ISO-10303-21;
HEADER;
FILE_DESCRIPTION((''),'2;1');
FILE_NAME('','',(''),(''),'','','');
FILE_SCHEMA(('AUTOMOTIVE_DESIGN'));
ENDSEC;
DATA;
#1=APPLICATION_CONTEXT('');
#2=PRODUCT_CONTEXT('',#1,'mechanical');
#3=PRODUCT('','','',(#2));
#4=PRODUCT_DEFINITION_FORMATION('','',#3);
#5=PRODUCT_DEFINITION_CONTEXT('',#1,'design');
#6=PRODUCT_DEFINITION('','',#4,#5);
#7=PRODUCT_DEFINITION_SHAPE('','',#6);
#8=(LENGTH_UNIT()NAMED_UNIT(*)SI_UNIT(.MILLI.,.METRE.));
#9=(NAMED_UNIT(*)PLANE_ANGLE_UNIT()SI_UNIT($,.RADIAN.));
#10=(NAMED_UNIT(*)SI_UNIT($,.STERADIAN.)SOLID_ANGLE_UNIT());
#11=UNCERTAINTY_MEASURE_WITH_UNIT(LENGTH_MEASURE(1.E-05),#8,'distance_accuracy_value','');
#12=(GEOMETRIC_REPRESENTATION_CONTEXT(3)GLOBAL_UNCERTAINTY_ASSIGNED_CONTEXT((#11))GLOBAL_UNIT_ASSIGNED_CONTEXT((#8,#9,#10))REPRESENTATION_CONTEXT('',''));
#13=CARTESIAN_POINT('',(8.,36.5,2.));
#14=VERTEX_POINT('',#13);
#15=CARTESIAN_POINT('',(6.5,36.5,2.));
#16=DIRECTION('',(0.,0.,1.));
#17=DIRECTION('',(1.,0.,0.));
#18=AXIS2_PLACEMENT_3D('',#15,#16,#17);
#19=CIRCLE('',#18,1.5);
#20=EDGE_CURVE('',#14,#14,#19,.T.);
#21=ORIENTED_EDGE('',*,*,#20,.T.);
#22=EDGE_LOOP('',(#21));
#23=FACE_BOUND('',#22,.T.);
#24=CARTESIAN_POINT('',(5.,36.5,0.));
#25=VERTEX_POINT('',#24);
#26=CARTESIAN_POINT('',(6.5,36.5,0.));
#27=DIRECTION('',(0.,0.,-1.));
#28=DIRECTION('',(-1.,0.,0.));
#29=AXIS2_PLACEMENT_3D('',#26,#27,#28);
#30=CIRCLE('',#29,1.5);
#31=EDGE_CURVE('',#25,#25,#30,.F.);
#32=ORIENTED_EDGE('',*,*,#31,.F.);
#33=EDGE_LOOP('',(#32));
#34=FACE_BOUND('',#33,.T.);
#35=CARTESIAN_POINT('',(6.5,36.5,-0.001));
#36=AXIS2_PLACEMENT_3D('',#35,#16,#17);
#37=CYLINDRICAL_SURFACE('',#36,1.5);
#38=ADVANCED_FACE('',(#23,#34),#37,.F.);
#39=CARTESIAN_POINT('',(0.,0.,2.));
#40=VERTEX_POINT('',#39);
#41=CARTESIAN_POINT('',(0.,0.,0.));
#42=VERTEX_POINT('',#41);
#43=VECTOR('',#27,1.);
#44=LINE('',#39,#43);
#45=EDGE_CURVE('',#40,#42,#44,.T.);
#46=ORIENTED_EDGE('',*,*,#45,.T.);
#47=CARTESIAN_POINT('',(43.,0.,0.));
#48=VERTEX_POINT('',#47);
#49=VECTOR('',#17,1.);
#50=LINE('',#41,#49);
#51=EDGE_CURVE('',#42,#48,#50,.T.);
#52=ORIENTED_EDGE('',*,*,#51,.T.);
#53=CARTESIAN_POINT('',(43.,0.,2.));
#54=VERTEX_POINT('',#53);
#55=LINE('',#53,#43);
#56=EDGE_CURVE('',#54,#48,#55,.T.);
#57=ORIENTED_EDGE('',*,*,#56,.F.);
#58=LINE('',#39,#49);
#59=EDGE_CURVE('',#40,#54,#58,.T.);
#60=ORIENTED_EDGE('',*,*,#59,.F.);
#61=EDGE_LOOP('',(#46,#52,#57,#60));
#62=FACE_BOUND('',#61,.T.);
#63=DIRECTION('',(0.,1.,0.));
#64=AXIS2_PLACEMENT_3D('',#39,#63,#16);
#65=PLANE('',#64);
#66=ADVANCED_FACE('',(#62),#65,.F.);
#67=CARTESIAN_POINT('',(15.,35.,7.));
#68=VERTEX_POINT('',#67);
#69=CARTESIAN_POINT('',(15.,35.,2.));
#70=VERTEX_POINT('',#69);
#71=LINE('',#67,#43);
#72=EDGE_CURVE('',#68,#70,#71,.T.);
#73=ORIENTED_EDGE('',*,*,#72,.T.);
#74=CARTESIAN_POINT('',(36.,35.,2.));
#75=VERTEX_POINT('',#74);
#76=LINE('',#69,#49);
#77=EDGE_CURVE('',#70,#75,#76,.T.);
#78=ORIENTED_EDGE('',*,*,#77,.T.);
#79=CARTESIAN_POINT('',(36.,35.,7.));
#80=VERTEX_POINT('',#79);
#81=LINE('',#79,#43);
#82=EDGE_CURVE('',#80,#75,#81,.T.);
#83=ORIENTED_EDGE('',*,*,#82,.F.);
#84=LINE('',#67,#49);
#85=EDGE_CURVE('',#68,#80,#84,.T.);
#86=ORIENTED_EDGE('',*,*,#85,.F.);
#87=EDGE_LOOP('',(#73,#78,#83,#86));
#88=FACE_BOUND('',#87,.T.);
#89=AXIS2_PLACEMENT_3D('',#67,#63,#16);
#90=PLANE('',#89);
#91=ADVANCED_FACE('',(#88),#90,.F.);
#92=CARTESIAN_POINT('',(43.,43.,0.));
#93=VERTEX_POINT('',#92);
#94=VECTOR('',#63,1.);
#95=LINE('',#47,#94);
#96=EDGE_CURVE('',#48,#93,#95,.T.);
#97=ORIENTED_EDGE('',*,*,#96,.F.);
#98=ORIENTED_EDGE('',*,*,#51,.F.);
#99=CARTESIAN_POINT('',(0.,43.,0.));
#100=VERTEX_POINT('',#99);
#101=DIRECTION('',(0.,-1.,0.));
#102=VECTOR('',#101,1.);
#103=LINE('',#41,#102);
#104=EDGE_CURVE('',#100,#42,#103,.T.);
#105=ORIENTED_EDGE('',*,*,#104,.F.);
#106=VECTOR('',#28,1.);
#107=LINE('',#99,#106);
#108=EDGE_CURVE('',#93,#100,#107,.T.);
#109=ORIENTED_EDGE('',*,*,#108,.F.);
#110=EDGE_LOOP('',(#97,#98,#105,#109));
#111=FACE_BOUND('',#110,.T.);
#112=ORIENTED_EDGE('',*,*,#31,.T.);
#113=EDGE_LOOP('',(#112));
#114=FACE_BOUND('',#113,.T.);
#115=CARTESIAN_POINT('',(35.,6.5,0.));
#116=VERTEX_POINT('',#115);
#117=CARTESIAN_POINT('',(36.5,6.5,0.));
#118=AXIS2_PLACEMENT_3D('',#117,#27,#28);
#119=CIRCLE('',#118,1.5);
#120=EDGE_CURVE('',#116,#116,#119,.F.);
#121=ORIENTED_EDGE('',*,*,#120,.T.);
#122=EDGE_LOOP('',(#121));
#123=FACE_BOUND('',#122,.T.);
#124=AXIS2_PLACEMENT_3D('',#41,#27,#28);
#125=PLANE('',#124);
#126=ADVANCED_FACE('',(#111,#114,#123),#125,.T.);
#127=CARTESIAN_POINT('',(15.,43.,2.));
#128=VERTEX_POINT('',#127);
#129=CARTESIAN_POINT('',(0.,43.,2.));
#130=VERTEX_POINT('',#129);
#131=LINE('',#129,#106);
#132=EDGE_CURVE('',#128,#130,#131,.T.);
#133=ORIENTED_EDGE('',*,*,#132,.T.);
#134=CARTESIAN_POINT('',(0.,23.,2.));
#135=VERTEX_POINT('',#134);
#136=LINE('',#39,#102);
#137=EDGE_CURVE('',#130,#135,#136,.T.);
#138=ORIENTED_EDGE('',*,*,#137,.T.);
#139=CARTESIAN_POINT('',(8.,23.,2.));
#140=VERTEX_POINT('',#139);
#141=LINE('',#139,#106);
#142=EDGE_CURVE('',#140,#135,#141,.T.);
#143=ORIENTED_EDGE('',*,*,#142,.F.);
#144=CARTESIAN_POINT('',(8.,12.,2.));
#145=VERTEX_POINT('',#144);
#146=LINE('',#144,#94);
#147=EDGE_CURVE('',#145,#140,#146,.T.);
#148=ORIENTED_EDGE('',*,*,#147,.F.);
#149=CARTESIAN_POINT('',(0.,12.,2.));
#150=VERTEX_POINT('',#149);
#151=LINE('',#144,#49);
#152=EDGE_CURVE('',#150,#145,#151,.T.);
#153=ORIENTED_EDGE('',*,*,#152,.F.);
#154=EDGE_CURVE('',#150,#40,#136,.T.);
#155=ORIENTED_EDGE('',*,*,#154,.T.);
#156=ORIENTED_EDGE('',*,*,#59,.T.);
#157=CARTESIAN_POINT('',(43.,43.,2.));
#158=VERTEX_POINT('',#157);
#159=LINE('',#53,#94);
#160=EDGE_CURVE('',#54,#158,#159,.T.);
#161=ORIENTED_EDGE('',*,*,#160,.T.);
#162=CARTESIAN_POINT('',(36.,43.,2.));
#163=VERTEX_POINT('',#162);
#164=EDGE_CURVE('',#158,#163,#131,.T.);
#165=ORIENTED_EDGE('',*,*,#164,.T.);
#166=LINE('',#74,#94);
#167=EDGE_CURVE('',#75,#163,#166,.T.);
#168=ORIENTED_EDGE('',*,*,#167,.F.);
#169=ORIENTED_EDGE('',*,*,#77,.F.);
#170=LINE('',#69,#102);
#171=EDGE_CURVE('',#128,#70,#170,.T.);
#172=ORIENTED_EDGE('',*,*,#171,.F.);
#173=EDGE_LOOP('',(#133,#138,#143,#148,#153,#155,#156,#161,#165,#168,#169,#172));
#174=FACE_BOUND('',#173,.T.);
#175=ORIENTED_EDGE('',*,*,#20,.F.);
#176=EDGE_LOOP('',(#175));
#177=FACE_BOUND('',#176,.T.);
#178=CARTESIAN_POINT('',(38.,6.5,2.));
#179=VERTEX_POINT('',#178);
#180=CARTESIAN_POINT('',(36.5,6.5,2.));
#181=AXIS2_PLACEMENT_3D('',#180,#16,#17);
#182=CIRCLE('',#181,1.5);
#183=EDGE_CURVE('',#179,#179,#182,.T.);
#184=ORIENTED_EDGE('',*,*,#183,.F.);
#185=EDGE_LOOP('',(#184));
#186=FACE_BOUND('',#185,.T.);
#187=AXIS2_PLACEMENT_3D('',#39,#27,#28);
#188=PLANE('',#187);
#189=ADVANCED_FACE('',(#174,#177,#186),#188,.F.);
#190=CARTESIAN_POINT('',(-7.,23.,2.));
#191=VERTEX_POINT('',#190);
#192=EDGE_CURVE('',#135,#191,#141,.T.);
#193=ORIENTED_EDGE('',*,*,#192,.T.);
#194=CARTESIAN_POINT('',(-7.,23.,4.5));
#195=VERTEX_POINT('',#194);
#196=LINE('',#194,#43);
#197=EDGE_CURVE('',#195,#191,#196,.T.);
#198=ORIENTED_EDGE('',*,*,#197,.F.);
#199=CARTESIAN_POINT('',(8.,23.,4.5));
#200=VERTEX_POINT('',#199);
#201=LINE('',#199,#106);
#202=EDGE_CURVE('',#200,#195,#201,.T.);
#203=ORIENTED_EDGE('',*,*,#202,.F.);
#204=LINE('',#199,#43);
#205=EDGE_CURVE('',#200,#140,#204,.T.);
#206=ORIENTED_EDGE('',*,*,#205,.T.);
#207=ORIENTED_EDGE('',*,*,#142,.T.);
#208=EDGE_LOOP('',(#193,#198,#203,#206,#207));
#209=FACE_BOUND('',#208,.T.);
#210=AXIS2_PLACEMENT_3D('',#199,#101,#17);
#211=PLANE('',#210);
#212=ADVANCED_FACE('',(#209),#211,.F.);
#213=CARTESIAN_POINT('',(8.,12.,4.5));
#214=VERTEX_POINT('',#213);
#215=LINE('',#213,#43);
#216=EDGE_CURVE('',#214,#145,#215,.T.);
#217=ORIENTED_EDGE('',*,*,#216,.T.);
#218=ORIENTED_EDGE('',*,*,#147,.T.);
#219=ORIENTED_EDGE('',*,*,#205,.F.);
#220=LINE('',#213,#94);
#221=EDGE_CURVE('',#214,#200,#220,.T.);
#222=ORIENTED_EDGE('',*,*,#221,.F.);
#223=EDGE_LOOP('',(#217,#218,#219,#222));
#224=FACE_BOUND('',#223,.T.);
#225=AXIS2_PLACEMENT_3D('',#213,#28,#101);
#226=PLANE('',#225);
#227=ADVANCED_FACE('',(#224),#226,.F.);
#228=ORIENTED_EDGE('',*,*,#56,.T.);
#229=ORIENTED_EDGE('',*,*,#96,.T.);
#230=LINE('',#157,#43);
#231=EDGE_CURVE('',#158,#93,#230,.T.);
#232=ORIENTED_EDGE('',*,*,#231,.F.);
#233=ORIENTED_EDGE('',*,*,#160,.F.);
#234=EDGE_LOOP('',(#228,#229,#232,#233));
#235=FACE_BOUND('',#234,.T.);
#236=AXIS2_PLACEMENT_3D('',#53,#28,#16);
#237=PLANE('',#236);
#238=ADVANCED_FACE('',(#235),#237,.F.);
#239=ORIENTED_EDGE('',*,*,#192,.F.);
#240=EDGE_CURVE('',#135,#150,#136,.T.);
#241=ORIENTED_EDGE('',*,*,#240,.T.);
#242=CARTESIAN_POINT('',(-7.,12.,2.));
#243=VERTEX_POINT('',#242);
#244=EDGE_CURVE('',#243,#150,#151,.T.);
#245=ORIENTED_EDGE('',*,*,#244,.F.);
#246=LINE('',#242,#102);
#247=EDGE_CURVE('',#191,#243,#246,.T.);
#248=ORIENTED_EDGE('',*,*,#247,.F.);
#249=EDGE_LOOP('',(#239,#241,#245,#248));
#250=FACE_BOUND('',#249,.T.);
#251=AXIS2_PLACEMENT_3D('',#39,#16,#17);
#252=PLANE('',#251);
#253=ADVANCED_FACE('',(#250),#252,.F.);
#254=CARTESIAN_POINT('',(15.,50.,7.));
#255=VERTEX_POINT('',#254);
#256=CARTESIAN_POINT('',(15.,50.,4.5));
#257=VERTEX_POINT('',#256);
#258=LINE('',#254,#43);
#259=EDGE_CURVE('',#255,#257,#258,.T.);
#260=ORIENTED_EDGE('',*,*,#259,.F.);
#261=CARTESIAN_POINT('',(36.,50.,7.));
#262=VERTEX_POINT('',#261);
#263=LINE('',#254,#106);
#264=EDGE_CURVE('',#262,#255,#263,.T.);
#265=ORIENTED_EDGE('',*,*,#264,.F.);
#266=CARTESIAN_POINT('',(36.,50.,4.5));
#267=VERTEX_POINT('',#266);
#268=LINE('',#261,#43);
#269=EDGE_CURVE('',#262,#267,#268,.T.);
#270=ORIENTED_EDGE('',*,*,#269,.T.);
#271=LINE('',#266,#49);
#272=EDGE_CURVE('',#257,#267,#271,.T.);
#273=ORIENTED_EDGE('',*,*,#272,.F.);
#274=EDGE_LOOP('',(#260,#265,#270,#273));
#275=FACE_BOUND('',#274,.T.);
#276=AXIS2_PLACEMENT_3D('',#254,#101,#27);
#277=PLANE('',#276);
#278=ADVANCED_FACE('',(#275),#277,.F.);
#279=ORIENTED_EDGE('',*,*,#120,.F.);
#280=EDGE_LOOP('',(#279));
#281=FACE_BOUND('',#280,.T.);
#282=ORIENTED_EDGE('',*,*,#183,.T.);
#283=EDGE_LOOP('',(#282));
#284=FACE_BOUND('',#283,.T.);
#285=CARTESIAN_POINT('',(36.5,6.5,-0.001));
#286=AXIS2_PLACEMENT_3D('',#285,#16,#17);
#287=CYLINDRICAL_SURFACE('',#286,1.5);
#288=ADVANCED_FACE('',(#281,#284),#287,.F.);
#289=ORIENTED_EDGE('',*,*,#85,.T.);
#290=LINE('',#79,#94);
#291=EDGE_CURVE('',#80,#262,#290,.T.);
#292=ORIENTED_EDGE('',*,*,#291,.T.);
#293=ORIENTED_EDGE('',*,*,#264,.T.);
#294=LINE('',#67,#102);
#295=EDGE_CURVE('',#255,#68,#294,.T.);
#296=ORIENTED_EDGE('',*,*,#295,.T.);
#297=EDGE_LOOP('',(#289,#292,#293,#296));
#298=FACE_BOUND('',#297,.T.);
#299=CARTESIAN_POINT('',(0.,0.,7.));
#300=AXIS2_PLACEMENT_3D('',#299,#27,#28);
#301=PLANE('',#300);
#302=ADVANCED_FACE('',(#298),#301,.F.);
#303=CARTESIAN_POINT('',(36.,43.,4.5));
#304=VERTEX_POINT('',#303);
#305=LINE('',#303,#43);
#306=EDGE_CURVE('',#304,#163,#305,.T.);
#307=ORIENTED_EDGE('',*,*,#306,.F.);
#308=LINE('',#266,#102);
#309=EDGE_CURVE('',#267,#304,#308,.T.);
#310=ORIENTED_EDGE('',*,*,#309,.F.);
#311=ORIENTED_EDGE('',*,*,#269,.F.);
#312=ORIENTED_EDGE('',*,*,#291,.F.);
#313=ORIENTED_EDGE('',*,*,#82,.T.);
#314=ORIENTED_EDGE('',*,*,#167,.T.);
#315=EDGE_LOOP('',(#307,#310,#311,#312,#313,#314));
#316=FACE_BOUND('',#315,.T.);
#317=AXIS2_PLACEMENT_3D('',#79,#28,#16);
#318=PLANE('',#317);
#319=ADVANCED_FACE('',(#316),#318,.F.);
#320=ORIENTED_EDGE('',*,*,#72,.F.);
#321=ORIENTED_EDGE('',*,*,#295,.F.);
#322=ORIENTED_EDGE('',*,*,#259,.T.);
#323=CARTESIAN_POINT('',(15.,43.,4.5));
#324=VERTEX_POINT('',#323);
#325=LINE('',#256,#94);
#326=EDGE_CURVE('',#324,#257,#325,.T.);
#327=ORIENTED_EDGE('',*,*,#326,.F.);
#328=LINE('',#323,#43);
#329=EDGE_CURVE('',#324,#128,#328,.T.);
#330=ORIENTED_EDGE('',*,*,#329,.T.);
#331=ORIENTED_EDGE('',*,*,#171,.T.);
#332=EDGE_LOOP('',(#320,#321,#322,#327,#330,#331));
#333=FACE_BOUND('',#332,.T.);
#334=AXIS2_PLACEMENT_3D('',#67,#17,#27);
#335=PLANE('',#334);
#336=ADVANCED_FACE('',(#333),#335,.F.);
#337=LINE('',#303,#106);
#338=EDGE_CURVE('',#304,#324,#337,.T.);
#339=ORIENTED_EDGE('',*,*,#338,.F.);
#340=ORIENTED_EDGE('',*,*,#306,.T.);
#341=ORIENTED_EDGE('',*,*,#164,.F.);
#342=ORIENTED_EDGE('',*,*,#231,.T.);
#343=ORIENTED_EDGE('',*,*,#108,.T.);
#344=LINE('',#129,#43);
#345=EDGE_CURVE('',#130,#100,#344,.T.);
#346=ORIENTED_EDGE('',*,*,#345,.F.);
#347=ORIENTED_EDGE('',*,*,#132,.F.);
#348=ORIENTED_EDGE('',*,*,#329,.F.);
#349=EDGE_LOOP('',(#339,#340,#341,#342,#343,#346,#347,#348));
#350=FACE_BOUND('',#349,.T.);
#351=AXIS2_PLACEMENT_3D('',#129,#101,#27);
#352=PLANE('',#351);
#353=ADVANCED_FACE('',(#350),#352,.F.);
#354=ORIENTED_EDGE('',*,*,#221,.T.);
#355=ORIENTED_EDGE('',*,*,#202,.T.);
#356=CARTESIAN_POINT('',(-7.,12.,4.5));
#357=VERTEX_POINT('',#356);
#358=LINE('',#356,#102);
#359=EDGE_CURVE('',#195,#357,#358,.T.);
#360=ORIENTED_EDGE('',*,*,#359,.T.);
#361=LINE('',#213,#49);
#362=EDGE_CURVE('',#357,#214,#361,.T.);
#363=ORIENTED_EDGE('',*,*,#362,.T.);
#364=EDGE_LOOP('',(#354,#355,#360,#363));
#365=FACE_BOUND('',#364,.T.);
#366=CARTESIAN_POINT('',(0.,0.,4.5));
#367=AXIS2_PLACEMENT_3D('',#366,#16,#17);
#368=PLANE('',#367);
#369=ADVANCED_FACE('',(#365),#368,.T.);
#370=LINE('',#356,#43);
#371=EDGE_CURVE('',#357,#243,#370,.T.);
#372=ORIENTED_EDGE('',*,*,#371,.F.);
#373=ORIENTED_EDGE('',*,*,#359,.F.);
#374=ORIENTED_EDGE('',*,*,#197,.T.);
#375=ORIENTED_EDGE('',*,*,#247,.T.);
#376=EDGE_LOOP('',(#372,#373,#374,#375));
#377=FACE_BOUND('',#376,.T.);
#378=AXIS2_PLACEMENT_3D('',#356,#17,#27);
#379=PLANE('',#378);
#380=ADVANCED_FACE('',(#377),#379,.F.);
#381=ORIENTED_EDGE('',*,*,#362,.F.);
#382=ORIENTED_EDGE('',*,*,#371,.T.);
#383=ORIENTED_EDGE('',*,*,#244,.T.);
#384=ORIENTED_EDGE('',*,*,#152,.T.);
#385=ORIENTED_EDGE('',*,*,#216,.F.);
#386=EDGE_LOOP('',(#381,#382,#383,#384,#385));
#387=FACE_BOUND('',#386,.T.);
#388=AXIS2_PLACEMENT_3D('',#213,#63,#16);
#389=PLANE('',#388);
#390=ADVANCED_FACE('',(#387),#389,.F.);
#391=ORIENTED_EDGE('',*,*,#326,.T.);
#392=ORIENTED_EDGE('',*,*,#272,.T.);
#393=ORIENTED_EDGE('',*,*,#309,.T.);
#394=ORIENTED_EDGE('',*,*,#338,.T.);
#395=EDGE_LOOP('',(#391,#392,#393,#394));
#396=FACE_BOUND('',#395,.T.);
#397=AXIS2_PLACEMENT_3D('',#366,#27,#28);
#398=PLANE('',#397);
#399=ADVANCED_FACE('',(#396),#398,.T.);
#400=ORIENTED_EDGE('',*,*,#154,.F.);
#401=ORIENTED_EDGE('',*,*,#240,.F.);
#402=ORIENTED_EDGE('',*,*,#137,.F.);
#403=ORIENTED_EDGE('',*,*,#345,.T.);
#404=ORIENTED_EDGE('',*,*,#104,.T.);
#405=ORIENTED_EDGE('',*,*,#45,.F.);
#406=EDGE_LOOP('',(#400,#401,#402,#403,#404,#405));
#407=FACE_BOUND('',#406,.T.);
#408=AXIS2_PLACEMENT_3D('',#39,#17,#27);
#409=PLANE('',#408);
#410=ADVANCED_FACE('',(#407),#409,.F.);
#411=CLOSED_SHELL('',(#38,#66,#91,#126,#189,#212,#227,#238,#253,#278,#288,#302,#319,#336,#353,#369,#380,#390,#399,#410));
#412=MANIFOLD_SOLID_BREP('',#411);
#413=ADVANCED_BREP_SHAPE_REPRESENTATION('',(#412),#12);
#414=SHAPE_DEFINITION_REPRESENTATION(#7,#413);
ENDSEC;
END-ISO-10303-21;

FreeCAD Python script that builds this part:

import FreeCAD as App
import Part
import Sketcher

V = App.Vector


def add_polygon(sketch, points):
    """Adds a closed chain of lines whose ends are joined by coincident constraints."""
    first, n = sketch.GeometryCount, len(points)
    for a, b in zip(points, points[1:] + points[:1]):
        sketch.addGeometry(Part.LineSegment(App.Vector(*a, 0), App.Vector(*b, 0)), False)
    for i in range(n):
        sketch.addConstraint(Sketcher.Constraint("Coincident", first + i, 2, first + (i + 1) % n, 1))

doc = App.newDocument("Part")
body = doc.addObject("PartDesign::Body", "Body")

sketch1 = body.newObject("Sketcher::SketchObject", "Sketch")
sketch1.AttachmentSupport = (doc.getObject("XY_Plane"), [""])
sketch1.MapMode = "FlatFace"
add_polygon(sketch1, [(0, 43), (0, 0), (43, 0), (43, 43)])
sketch1.addConstraint(Sketcher.Constraint("Vertical", 0))
sketch1.addConstraint(Sketcher.Constraint("Horizontal", 1))
sketch1.addConstraint(Sketcher.Constraint("Vertical", 2))
sketch1.addConstraint(Sketcher.Constraint("Horizontal", 3))
sketch1.addConstraint(Sketcher.Constraint("Coincident", 0, 2, -1, 1))
sketch1.addConstraint(Sketcher.Constraint("Equal", 3, 0))
sketch1.addConstraint(Sketcher.Constraint("DistanceX", 1, 1, 1, 2, 43.0))
pad1 = body.newObject("PartDesign::Pad", "Pad")
pad1.Profile = sketch1
pad1.Length = 2

sketch2 = body.newObject("Sketcher::SketchObject", "Sketch001")
sketch2.AttachmentSupport = (doc.getObject("XY_Plane"), [""])
sketch2.MapMode = "FlatFace"
sketch2.AttachmentOffset = App.Placement(V(0, 0, 2), App.Rotation())
sketch2.addGeometry(Part.Circle(V(6.5, 36.5, 0), V(0, 0, 1), 1.5), False)
sketch2.addConstraint(Sketcher.Constraint("Diameter", 0, 3.0))
sketch2.addConstraint(Sketcher.Constraint("DistanceX", -1, 1, 0, 3, 6.5))
sketch2.addConstraint(Sketcher.Constraint("DistanceY", -1, 1, 0, 3, 36.5))
pocket1 = body.newObject("PartDesign::Pocket", "Pocket")
pocket1.Profile = sketch2
pocket1.Type = "UpToFirst"

sketch3 = body.newObject("Sketcher::SketchObject", "Sketch002")
sketch3.AttachmentSupport = (doc.getObject("XY_Plane"), [""])
sketch3.MapMode = "FlatFace"
sketch3.AttachmentOffset = App.Placement(V(0, 0, 2), App.Rotation())
sketch3.addGeometry(Part.Circle(V(36.5, 6.5, 0), V(0, 0, 1), 1.5), False)
sketch3.addConstraint(Sketcher.Constraint("Diameter", 0, 3.0))
sketch3.addConstraint(Sketcher.Constraint("DistanceX", -1, 1, 0, 3, 36.5))
sketch3.addConstraint(Sketcher.Constraint("DistanceY", -1, 1, 0, 3, 6.5))
pocket2 = body.newObject("PartDesign::Pocket", "Pocket001")
pocket2.Profile = sketch3
pocket2.Type = "UpToFirst"

sketch4 = body.newObject("Sketcher::SketchObject", "Sketch003")
sketch4.AttachmentSupport = (doc.getObject("XY_Plane"), [""])
sketch4.MapMode = "FlatFace"
sketch4.AttachmentOffset = App.Placement(V(0, 0, 2), App.Rotation())
add_polygon(sketch4, [(15, 50), (15, 35), (36, 35), (36, 50)])
sketch4.addConstraint(Sketcher.Constraint("Vertical", 0))
sketch4.addConstraint(Sketcher.Constraint("Horizontal", 1))
sketch4.addConstraint(Sketcher.Constraint("Vertical", 2))
sketch4.addConstraint(Sketcher.Constraint("Horizontal", 3))
sketch4.addConstraint(Sketcher.Constraint("DistanceX", 1, 1, 1, 2, 21.0))
sketch4.addConstraint(Sketcher.Constraint("DistanceY", 0, 2, 0, 1, 15.0))
sketch4.addConstraint(Sketcher.Constraint("DistanceX", -1, 1, 0, 2, 15.0))
sketch4.addConstraint(Sketcher.Constraint("DistanceY", -1, 1, 0, 2, 35.0))
pad2 = body.newObject("PartDesign::Pad", "Pad001")
pad2.Profile = sketch4
pad2.Length = 5

sketch5 = body.newObject("Sketcher::SketchObject", "Sketch004")
sketch5.AttachmentSupport = (doc.getObject("XY_Plane"), [""])
sketch5.MapMode = "FlatFace"
sketch5.AttachmentOffset = App.Placement(V(0, 0, 2), App.Rotation())
add_polygon(sketch5, [(-7, 23), (-7, 12), (8, 12), (8, 23)])
sketch5.addConstraint(Sketcher.Constraint("Vertical", 0))
sketch5.addConstraint(Sketcher.Constraint("Horizontal", 1))
sketch5.addConstraint(Sketcher.Constraint("Vertical", 2))
sketch5.addConstraint(Sketcher.Constraint("Horizontal", 3))
sketch5.addConstraint(Sketcher.Constraint("DistanceX", 1, 1, 1, 2, 15.0))
sketch5.addConstraint(Sketcher.Constraint("DistanceY", 0, 2, 0, 1, 11.0))
sketch5.addConstraint(Sketcher.Constraint("DistanceX", 0, 2, -1, 1, 7.0))
sketch5.addConstraint(Sketcher.Constraint("DistanceY", -1, 1, 0, 2, 12.0))
pad3 = body.newObject("PartDesign::Pad", "Pad002")
pad3.Profile = sketch5
pad3.Length = 2.5

sketch6 = body.newObject("Sketcher::SketchObject", "Sketch005")
sketch6.AttachmentSupport = (doc.getObject("XY_Plane"), [""])
sketch6.MapMode = "FlatFace"
sketch6.AttachmentOffset = App.Placement(V(0, 0, 2), App.Rotation())
add_polygon(sketch6, [(36, 50), (36, 43), (15, 43), (15, 50)])
sketch6.addConstraint(Sketcher.Constraint("Vertical", 0))
sketch6.addConstraint(Sketcher.Constraint("Horizontal", 1))
sketch6.addConstraint(Sketcher.Constraint("Vertical", 2))
sketch6.addConstraint(Sketcher.Constraint("Horizontal", 3))
sketch6.addConstraint(Sketcher.Constraint("DistanceX", 1, 2, 1, 1, 21.0))
sketch6.addConstraint(Sketcher.Constraint("DistanceY", 0, 2, 0, 1, 7.0))
sketch6.addConstraint(Sketcher.Constraint("DistanceX", -1, 1, 0, 2, 36.0))
sketch6.addConstraint(Sketcher.Constraint("DistanceY", -1, 1, 0, 2, 43.0))
pocket3 = body.newObject("PartDesign::Pocket", "Pocket002")
pocket3.Profile = sketch6
pocket3.Length = 2.5
pocket3.Reversed = True

doc.recompute()
